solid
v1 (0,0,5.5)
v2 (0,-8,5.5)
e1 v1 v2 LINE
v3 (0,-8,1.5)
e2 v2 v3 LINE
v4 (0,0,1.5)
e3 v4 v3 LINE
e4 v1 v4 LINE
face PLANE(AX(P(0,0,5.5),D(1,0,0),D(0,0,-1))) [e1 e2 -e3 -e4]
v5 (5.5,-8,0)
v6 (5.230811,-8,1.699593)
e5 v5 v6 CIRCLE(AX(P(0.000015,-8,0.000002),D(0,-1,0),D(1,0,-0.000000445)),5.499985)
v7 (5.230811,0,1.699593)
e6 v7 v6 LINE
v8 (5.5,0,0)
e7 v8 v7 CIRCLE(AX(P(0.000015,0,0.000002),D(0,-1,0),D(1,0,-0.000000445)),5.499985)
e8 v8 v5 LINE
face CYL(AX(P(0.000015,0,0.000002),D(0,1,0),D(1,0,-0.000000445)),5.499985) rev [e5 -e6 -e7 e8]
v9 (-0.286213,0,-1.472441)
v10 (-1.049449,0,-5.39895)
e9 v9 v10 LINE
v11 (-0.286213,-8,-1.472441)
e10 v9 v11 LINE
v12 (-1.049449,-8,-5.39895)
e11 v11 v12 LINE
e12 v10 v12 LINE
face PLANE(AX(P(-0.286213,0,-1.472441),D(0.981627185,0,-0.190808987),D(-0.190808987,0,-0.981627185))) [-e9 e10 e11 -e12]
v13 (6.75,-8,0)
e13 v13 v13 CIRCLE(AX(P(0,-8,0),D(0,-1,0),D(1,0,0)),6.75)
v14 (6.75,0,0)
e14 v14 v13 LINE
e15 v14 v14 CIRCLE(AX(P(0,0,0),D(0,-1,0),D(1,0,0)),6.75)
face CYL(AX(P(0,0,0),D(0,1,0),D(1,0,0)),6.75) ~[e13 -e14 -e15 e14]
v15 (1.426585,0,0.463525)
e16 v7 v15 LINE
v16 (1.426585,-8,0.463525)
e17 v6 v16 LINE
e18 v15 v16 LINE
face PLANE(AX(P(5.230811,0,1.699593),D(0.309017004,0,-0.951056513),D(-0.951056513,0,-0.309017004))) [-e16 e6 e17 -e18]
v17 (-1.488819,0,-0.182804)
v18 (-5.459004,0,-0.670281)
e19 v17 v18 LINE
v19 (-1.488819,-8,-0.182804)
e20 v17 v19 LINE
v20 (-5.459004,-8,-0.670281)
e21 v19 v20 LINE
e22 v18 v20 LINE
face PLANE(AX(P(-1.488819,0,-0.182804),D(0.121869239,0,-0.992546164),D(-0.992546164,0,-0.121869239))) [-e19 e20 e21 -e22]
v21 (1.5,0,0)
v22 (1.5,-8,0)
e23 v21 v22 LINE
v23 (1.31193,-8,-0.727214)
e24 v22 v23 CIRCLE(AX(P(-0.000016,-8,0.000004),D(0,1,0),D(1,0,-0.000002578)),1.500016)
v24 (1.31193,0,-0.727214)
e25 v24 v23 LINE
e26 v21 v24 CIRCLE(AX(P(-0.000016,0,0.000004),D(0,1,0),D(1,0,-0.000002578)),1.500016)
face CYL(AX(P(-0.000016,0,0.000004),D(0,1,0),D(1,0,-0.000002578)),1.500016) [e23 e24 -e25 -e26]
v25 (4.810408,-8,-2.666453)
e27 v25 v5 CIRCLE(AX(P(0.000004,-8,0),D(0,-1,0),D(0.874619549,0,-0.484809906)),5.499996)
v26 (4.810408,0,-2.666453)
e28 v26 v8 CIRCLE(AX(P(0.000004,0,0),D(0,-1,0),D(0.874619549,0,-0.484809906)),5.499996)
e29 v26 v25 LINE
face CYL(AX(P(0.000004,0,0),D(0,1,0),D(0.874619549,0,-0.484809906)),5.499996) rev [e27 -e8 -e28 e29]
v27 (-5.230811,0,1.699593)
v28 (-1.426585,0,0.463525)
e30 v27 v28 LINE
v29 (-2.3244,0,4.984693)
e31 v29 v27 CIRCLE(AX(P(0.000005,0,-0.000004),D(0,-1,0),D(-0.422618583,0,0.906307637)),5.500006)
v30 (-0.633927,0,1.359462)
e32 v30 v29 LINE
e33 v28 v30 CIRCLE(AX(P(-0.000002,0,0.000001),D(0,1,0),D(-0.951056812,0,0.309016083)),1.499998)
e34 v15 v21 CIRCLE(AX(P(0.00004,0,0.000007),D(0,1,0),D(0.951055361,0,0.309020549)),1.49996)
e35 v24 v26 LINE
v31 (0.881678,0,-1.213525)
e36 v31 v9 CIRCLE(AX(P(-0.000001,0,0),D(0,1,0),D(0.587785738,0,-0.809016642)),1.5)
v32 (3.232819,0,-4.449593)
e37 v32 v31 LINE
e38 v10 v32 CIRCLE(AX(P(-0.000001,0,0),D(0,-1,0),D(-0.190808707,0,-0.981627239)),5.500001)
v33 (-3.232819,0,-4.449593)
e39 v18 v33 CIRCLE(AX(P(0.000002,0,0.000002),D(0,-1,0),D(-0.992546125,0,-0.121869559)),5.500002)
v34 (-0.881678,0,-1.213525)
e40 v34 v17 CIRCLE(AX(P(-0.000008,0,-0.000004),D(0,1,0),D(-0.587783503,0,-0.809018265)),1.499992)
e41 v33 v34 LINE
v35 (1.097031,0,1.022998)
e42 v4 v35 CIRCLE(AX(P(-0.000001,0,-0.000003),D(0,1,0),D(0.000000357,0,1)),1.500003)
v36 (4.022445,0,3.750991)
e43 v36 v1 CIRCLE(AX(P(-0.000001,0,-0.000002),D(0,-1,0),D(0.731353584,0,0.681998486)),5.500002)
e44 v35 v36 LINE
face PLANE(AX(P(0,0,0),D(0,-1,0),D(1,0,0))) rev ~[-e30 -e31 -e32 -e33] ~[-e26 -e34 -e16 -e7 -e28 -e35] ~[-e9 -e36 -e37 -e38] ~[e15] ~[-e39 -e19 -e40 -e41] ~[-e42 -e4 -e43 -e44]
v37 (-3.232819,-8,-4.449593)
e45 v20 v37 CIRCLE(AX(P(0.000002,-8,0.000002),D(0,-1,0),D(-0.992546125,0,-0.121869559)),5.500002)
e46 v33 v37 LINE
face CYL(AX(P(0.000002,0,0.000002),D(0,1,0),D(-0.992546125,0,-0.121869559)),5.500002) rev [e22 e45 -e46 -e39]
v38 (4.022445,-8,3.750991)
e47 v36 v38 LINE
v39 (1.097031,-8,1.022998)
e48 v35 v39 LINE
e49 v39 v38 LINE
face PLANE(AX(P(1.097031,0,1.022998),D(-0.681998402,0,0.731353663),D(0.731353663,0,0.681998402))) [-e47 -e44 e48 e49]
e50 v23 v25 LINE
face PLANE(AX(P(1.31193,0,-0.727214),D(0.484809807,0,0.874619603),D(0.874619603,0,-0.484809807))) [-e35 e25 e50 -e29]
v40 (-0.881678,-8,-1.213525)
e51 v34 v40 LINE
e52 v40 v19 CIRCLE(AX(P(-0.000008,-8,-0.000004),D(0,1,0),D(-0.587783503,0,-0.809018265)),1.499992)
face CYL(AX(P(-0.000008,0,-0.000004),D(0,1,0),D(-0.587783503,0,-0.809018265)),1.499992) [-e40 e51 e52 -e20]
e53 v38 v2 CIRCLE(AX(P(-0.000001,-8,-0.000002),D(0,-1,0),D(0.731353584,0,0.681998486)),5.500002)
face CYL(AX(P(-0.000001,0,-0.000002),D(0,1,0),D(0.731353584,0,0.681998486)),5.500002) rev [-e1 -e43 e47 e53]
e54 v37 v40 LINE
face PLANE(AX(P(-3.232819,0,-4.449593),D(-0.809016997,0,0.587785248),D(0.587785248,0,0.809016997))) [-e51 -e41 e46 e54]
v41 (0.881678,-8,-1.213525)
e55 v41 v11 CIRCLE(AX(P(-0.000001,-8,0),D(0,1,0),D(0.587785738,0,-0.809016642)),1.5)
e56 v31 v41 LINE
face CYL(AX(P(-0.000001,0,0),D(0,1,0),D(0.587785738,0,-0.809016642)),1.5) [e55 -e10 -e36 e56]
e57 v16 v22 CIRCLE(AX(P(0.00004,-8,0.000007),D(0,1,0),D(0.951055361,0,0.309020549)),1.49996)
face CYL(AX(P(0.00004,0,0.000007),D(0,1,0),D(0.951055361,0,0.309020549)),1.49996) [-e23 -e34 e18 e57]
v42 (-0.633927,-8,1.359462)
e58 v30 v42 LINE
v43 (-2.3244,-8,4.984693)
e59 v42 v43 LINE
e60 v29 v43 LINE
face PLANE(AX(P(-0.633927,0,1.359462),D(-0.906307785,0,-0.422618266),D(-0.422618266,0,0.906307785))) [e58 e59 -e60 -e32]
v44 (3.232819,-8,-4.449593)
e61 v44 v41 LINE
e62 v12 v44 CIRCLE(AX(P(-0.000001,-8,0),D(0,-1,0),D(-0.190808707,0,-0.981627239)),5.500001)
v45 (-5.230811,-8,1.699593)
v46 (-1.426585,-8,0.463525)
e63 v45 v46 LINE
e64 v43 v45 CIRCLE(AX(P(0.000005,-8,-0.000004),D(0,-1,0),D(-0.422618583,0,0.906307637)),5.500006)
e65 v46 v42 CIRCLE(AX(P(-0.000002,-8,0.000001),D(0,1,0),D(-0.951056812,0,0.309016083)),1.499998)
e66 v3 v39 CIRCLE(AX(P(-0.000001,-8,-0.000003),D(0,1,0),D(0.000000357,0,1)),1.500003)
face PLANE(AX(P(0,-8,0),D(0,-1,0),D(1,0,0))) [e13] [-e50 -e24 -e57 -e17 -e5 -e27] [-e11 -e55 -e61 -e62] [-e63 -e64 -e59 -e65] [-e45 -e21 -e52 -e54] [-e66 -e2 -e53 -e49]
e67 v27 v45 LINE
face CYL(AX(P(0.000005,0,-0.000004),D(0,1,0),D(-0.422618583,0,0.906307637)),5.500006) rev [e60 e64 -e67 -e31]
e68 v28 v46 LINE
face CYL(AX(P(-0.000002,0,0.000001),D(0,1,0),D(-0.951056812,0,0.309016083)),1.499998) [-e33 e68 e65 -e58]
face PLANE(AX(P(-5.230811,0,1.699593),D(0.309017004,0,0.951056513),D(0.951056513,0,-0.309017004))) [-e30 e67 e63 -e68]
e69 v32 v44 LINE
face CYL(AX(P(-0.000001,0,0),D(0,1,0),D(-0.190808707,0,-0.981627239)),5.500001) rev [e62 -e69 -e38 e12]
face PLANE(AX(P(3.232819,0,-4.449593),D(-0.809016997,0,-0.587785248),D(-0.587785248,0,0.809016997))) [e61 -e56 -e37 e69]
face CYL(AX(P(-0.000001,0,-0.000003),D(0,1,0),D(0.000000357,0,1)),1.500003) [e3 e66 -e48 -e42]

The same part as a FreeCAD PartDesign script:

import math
import FreeCAD as App
import Part
import Sketcher
from FreeCAD import Vector
Q = App.Units.Quantity

doc = App.newDocument("Part")
body = doc.addObject("PartDesign::Body", "Body")

sketch1 = body.newObject("Sketcher::SketchObject", "Sketch")
sketch1.AttachmentSupport = (doc.getObject("XZ_Plane"), [""])
sketch1.MapMode = "FlatFace"
sketch1.addGeometry(Part.Circle(Vector(0, 0, 0), Vector(0, 0, 1), 7), False)
sketch1.addConstraint(Sketcher.Constraint("Coincident", 0, 3, -1, 1))
sketch1.addConstraint(Sketcher.Constraint("Diameter", 0, Q("13.5 mm")))
pad1 = body.newObject("PartDesign::Pad", "Pad")
pad1.Profile = sketch1
pad1.Length = 8

sketch2 = body.newObject("Sketcher::SketchObject", "Sketch001")
sketch2.AttachmentSupport = (doc.getObject("XZ_Plane"), [""])
sketch2.MapMode = "FlatFace"
sketch2.addGeometry(Part.ArcOfCircle(Part.Circle(Vector(0.00004, 0.000007, 0), Vector(0, 0, 1), 1.49996), math.radians(-0.00025), math.radians(18.000214)), False)
sketch2.addGeometry(Part.ArcOfCircle(Part.Circle(Vector(-0.000016, 0.000004, 0), Vector(0, 0, 1), 1.500016), math.radians(-28.999804), math.radians(-0.000148)), False)
sketch2.addGeometry(Part.LineSegment(Vector(1.31193, -0.727214, 0), Vector(4.810408, -2.666453, 0)), False)
sketch2.addGeometry(Part.ArcOfCircle(Part.Circle(Vector(0.000004, 0, 0), Vector(0, 0, 1), 5.499996), math.radians(-29.000019), math.radians(0.000004)), False)
sketch2.addGeometry(Part.ArcOfCircle(Part.Circle(Vector(0.000015, 0.000002, 0), Vector(0, 0, 1), 5.499985), math.radians(-0.000025), math.radians(18.00002)), False)
sketch2.addGeometry(Part.LineSegment(Vector(5.230811, 1.699593, 0), Vector(1.426585, 0.463525, 0)), False)
sketch2.addGeometry(Part.ArcOfCircle(Part.Circle(Vector(-0.000001, -0.000003, 0), Vector(0, 0, 1), 1.500003), math.radians(43.000078), math.radians(89.99998)), False)
sketch2.addGeometry(Part.LineSegment(Vector(1.097031, 1.022998, 0), Vector(4.022445, 3.750991, 0)), False)
sketch2.addGeometry(Part.ArcOfCircle(Part.Circle(Vector(-0.000001, -0.000002, 0), Vector(0, 0, 1), 5.500002), math.radians(43.00001), math.radians(89.999987)), False)
sketch2.addGeometry(Part.LineSegment(Vector(0, 5.5, 0), Vector(0, 1.5, 0)), False)
sketch2.addGeometry(Part.ArcOfCircle(Part.Circle(Vector(-0.000002, 0.000001, 0), Vector(0, 0, 1), 1.499998), math.radians(114.999952), math.radians(162.000055)), False)
sketch2.addGeometry(Part.LineSegment(Vector(-0.633927, 1.359462, 0), Vector(-2.3244, 4.984693, 0)), False)
sketch2.addGeometry(Part.ArcOfCircle(Part.Circle(Vector(0.000005, -0.000004, 0), Vector(0, 0, 1), 5.500006), math.radians(115.00002), math.radians(161.999979)), False)
sketch2.addGeometry(Part.LineSegment(Vector(-5.230811, 1.699593, 0), Vector(-1.426585, 0.463525, 0)), False)
sketch2.addGeometry(Part.LineSegment(Vector(3.232819, -4.449593, 0), Vector(0.881678, -1.213525, 0)), False)
sketch2.addGeometry(Part.ArcOfCircle(Part.Circle(Vector(-0.000001, 0, 0), Vector(0, 0, 1), 1.5), math.radians(-100.99996), math.radians(-53.999966)), False)
sketch2.addGeometry(Part.LineSegment(Vector(-0.286213, -1.472441, 0), Vector(-1.049449, -5.39895, 0)), False)
sketch2.addGeometry(Part.ArcOfCircle(Part.Circle(Vector(-0.000001, 0, 0), Vector(0, 0, 1), 5.500001), math.radians(-100.999983), math.radians(-53.99999)), False)
sketch2.addGeometry(Part.LineSegment(Vector(-3.232819, -4.449593, 0), Vector(-0.881678, -1.213525, 0)), False)
sketch2.addGeometry(Part.ArcOfCircle(Part.Circle(Vector(-0.000008, -0.000004, 0), Vector(0, 0, 1), 1.499992), math.radians(-173.00013), math.radians(-125.999876)), False)
sketch2.addGeometry(Part.LineSegment(Vector(-1.488819, -0.182804, 0), Vector(-5.459004, -0.670281, 0)), False)
sketch2.addGeometry(Part.ArcOfCircle(Part.Circle(Vector(0.000002, 0.000002, 0), Vector(0, 0, 1), 5.500002), math.radians(-172.999988), math.radians(-126.00001)), False)
sketch2.addConstraint(Sketcher.Constraint("Coincident", 0, 1, 1, 2))
sketch2.addConstraint(Sketcher.Constraint("Coincident", 1, 1, 2, 1))
sketch2.addConstraint(Sketcher.Constraint("Coincident", 2, 2, 3, 1))
sketch2.addConstraint(Sketcher.Constraint("Coincident", 3, 2, 4, 1))
sketch2.addConstraint(Sketcher.Constraint("Coincident", 4, 2, 5, 1))
sketch2.addConstraint(Sketcher.Constraint("Coincident", 5, 2, 0, 2))
sketch2.addConstraint(Sketcher.Constraint("Coincident", 6, 1, 7, 1))
sketch2.addConstraint(Sketcher.Constraint("Coincident", 7, 2, 8, 1))
sketch2.addConstraint(Sketcher.Constraint("Coincident", 8, 2, 9, 1))
sketch2.addConstraint(Sketcher.Constraint("Coincident", 9, 2, 6, 2))
sketch2.addConstraint(Sketcher.Constraint("Coincident", 10, 1, 11, 1))
sketch2.addConstraint(Sketcher.Constraint("Coincident", 11, 2, 12, 1))
sketch2.addConstraint(Sketcher.Constraint("Coincident", 12, 2, 13, 1))
sketch2.addConstraint(Sketcher.Constraint("Coincident", 13, 2, 10, 2))
sketch2.addConstraint(Sketcher.Constraint("Coincident", 14, 2, 15, 2))
sketch2.addConstraint(Sketcher.Constraint("Coincident", 15, 1, 16, 1))
sketch2.addConstraint(Sketcher.Constraint("Coincident", 16, 2, 17, 1))
sketch2.addConstraint(Sketcher.Constraint("Coincident", 17, 2, 14, 1))
sketch2.addConstraint(Sketcher.Constraint("Coincident", 18, 2, 19, 2))
sketch2.addConstraint(Sketcher.Constraint("Coincident", 19, 1, 20, 1))
sketch2.addConstraint(Sketcher.Constraint("Coincident", 20, 2, 21, 1))
sketch2.addConstraint(Sketcher.Constraint("Coincident", 21, 2, 18, 1))
sketch2.addConstraint(Sketcher.Constraint("Vertical", 9))
sketch2.addConstraint(Sketcher.Constraint("Coincident", 3, 3, -1, 1))
sketch2.addConstraint(Sketcher.Constraint("Coincident", 6, 3, -1, 1))
sketch2.addConstraint(Sketcher.Constraint("Coincident", 8, 3, -1, 1))
sketch2.addConstraint(Sketcher.Constraint("Coincident", 10, 3, -1, 1))
sketch2.addConstraint(Sketcher.Constraint("Coincident", 12, 3, -1, 1))
sketch2.addConstraint(Sketcher.Constraint("Coincident", 15, 3, -1, 1))
sketch2.addConstraint(Sketcher.Constraint("Coincident", 17, 3, -1, 1))
sketch2.addConstraint(Sketcher.Constraint("Coincident", 19, 3, -1, 1))
sketch2.addConstraint(Sketcher.Constraint("Coincident", 21, 3, -1, 1))
sketch2.addConstraint(Sketcher.Constraint("PointOnObject", 0, 1, -1))
sketch2.addConstraint(Sketcher.Constraint("PointOnObject", 3, 2, -1))
sketch2.addConstraint(Sketcher.Constraint("PointOnObject", 8, 2, -2))
sketch2.addConstraint(Sketcher.Constraint("Radius", 10, Q("1.499998 mm")))
sketch2.addConstraint(Sketcher.Constraint("Radius", 15, Q("1.5 mm")))
sketch2.addConstraint(Sketcher.Constraint("Radius", 17, Q("5.500001 mm")))
sketch2.addConstraint(Sketcher.Constraint("DistanceY", 9, 2, 9, 1, Q("4 mm")))
sketch2.addConstraint(Sketcher.Constraint("Distance", 2, Q("4 mm")))
sketch2.addConstraint(Sketcher.Constraint("Distance", 5, Q("4 mm")))
sketch2.addConstraint(Sketcher.Constraint("Distance", 11, Q("4 mm")))
sketch2.addConstraint(Sketcher.Constraint("Distance", 18, Q("4 mm")))
sketch2.addConstraint(Sketcher.Constraint("DistanceX", 0, 1, 3, 2, Q("4 mm")))
sketch2.addConstraint(Sketcher.Constraint("DistanceX", -1, 1, 0, 1, Q("1.5 mm")))
sketch2.addConstraint(Sketcher.Constraint("DistanceY", -1, 1, 8, 2, Q("5.5 mm")))
sketch2.addConstraint(Sketcher.Constraint("Radius", 0, Q("1.49996 mm")))
sketch2.addConstraint(Sketcher.Constraint("Radius", 19, Q("1.499992 mm")))
sketch2.addConstraint(Sketcher.Constraint("DistanceY", -1, 1, 6, 1, Q("1.022998 mm")))
sketch2.addConstraint(Sketcher.Constraint("Radius", 1, Q("1.500016 mm")))
sketch2.addConstraint(Sketcher.Constraint("Radius", 4, Q("5.499985 mm")))
sketch2.addConstraint(Sketcher.Constraint("DistanceX", 21, 2, 19, 1, Q("1.744 mm")))
sketch2.addConstraint(Sketcher.Constraint("DistanceX", 11, 2, -1, 1, Q("2.3244 mm")))
sketch2.addConstraint(Sketcher.Constraint("DistanceY", 4, 2, 7, 2, Q("2.051398 mm")))
sketch2.addConstraint(Sketcher.Constraint("DistanceY", 12, 2, 11, 2, Q("3.2851 mm")))
sketch2.addConstraint(Sketcher.Constraint("DistanceY", 19, 1, 19, 3, Q("0.1828 mm")))
sketch2.addConstraint(Sketcher.Constraint("DistanceX", -1, 1, 1, 1, Q("1.31193 mm")))
sketch2.addConstraint(Sketcher.Constraint("DistanceX", -1, 1, 4, 2, Q("5.230811 mm")))
sketch2.addConstraint(Sketcher.Constraint("DistanceY", -1, 1, 7, 2, Q("3.750991 mm")))
sketch2.addConstraint(Sketcher.Constraint("DistanceY", 15, 1, -1, 1, Q("1.472441 mm")))
sketch2.addConstraint(Sketcher.Constraint("DistanceX", 16, 2, -1, 1, Q("1.049449 mm")))
sketch2.addConstraint(Sketcher.Constraint("DistanceX", -1, 1, 17, 2, Q("3.232819 mm")))
sketch2.addConstraint(Sketcher.Constraint("DistanceY", 20, 2, -1, 1, Q("0.670281 mm")))
sketch2.addConstraint(Sketcher.Constraint("DistanceX", 1, 1, 2, 2, Q("3.498478 mm")))
sketch2.addConstraint(Sketcher.Constraint("DistanceY", 1, 1, 5, 2, Q("1.190739 mm")))
sketch2.addConstraint(Sketcher.Constraint("DistanceX", 10, 1, 1, 3, Q("0.633911 mm")))
sketch2.addConstraint(Sketcher.Constraint("DistanceX", 13, 2, 1, 3, Q("1.426569 mm")))
sketch2.addConstraint(Sketcher.Constraint("DistanceX", 14, 2, 1, 1, Q("0.430252 mm")))
sketch2.addConstraint(Sketcher.Constraint("DistanceX", 18, 2, 19, 3, Q("0.88167 mm")))
pocket1 = body.newObject("PartDesign::Pocket", "Pocket")
pocket1.Profile = sketch2
pocket1.Length = 8
pocket1.Reversed = True

doc.recompute()
